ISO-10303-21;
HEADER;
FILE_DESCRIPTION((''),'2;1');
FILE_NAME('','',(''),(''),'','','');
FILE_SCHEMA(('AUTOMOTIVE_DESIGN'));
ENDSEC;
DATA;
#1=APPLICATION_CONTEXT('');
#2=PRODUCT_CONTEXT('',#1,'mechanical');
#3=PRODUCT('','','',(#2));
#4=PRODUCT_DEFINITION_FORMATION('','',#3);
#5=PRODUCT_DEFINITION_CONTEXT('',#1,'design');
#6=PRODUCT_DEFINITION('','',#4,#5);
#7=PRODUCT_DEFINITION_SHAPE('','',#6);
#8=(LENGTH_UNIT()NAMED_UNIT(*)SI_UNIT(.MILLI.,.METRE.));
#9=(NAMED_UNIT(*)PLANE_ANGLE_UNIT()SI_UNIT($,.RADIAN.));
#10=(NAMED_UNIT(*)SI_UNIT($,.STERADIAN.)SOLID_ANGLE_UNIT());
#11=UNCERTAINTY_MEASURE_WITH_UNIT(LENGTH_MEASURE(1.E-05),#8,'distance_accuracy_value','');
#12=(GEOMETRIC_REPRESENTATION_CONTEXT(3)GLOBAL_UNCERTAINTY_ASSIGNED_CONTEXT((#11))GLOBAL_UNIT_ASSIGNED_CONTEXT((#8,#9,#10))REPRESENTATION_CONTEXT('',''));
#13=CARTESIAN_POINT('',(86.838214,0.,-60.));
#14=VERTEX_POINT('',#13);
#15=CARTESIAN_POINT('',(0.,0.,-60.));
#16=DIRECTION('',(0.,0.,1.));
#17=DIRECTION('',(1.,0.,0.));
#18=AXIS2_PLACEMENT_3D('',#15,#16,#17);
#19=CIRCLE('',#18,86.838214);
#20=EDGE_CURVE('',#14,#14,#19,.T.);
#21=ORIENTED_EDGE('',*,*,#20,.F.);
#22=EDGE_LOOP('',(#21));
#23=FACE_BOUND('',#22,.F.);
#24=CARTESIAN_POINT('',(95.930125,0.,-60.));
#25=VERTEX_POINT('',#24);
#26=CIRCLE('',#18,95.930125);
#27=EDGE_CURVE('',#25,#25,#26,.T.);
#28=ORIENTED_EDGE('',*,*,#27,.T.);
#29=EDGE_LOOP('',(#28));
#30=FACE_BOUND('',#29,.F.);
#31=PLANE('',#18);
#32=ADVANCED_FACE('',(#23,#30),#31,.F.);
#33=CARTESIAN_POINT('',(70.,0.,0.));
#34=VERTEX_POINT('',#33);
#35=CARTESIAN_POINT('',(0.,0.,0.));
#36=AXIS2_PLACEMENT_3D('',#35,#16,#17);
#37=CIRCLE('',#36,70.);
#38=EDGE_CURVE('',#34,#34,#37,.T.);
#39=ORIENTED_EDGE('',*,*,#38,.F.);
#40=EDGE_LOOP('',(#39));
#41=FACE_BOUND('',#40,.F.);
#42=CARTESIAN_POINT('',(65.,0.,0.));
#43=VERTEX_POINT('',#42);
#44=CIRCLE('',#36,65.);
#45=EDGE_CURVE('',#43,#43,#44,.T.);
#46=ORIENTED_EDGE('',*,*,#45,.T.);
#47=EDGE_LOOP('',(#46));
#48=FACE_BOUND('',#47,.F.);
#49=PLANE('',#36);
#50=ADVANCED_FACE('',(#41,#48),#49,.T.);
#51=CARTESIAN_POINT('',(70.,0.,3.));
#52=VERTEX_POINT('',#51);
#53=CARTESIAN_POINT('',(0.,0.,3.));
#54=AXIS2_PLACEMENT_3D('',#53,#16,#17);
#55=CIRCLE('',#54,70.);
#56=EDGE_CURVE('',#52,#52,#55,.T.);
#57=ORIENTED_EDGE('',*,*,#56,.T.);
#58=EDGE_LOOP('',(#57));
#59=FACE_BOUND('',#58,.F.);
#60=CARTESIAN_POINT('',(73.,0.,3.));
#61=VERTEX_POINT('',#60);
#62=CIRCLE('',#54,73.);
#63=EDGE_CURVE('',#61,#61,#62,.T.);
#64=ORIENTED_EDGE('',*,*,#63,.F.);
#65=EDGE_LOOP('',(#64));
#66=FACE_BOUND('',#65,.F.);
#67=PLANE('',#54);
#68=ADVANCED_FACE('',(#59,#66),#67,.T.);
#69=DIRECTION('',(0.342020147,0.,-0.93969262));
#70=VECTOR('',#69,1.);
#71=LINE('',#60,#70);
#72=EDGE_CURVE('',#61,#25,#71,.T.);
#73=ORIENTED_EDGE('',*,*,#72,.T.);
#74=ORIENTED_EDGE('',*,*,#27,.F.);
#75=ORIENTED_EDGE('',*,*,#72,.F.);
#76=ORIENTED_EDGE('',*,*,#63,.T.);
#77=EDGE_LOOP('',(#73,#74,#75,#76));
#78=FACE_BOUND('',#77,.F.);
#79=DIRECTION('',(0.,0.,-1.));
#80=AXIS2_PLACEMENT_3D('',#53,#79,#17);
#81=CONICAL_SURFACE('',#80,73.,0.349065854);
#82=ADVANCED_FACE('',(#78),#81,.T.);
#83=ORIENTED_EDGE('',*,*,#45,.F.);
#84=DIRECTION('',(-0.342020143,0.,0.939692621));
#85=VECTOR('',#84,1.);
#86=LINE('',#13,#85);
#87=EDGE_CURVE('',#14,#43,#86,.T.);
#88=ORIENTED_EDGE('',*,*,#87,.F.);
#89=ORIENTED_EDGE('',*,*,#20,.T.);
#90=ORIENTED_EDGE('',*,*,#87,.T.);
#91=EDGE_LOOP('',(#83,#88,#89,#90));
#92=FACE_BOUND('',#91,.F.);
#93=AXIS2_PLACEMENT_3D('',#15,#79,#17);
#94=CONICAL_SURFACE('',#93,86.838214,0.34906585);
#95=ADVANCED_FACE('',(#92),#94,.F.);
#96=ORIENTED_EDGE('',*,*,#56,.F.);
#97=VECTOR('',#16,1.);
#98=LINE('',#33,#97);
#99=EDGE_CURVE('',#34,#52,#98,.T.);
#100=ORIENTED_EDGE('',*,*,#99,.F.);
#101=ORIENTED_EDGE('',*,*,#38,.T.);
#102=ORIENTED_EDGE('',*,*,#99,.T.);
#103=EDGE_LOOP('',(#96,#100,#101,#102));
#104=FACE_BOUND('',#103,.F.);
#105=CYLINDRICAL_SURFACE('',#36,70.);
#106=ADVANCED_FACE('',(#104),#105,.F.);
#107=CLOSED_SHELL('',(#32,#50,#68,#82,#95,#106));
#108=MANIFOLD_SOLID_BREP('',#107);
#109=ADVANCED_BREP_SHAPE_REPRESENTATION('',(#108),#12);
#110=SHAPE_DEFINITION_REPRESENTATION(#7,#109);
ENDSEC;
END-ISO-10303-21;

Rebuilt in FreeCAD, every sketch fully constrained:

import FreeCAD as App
import Part
import Sketcher
from FreeCAD import Vector
Q = App.Units.Quantity


def add_polygon(sketch, points):
    """Adds a closed chain of lines whose ends are joined by coincident constraints."""
    first, n = sketch.GeometryCount, len(points)
    for a, b in zip(points, points[1:] + points[:1]):
        sketch.addGeometry(Part.LineSegment(App.Vector(*a, 0), App.Vector(*b, 0)), False)
    for i in range(n):
        sketch.addConstraint(Sketcher.Constraint("Coincident", first + i, 2, first + (i + 1) % n, 1))

doc = App.newDocument("Part")
body = doc.addObject("PartDesign::Body", "Body")

# Sketch on XZ plane
sketch1 = doc.addObject("Sketcher::SketchObject", "Sketch")
body.addObject(sketch1)
sketch1.AttachmentSupport = (doc.XZ_Plane, [""])
sketch1.MapMode = "FlatFace"
add_polygon(sketch1, [(70, 0), (65, 0), (86.8, -60), (95.9, -60), (73, 3), (70, 3)])  # lines 0-5
sketch1.addConstraint([
    Sketcher.Constraint("Horizontal", 0),
    Sketcher.Constraint("Horizontal", 2),
    Sketcher.Constraint("Horizontal", 4),
    Sketcher.Constraint("Vertical", 5),
    Sketcher.Constraint("PointOnObject", 0, 2, -1),
    Sketcher.Constraint("Parallel", 1, 3),
    Sketcher.Constraint("Equal", 4, 5),
    Sketcher.Constraint("DistanceX", 0, 2, 0, 1, Q("5 mm")),
    Sketcher.Constraint("DistanceX", 4, 2, 4, 1, Q("3 mm")),
    Sketcher.Constraint("Angle", 1, Q("-70 deg")),
    Sketcher.Constraint("DistanceX", -1, 1, 0, 2, Q("65 mm")),
    Sketcher.Constraint("DistanceY", 1, 2, -1, 1, Q("60 mm")),
])
revolution = doc.addObject("PartDesign::Revolution", "Revolution")
body.addObject(revolution)
revolution.Profile = sketch1
revolution.ReferenceAxis = (sketch1, ["V_Axis"])
revolution.Angle = 360

doc.recompute()
